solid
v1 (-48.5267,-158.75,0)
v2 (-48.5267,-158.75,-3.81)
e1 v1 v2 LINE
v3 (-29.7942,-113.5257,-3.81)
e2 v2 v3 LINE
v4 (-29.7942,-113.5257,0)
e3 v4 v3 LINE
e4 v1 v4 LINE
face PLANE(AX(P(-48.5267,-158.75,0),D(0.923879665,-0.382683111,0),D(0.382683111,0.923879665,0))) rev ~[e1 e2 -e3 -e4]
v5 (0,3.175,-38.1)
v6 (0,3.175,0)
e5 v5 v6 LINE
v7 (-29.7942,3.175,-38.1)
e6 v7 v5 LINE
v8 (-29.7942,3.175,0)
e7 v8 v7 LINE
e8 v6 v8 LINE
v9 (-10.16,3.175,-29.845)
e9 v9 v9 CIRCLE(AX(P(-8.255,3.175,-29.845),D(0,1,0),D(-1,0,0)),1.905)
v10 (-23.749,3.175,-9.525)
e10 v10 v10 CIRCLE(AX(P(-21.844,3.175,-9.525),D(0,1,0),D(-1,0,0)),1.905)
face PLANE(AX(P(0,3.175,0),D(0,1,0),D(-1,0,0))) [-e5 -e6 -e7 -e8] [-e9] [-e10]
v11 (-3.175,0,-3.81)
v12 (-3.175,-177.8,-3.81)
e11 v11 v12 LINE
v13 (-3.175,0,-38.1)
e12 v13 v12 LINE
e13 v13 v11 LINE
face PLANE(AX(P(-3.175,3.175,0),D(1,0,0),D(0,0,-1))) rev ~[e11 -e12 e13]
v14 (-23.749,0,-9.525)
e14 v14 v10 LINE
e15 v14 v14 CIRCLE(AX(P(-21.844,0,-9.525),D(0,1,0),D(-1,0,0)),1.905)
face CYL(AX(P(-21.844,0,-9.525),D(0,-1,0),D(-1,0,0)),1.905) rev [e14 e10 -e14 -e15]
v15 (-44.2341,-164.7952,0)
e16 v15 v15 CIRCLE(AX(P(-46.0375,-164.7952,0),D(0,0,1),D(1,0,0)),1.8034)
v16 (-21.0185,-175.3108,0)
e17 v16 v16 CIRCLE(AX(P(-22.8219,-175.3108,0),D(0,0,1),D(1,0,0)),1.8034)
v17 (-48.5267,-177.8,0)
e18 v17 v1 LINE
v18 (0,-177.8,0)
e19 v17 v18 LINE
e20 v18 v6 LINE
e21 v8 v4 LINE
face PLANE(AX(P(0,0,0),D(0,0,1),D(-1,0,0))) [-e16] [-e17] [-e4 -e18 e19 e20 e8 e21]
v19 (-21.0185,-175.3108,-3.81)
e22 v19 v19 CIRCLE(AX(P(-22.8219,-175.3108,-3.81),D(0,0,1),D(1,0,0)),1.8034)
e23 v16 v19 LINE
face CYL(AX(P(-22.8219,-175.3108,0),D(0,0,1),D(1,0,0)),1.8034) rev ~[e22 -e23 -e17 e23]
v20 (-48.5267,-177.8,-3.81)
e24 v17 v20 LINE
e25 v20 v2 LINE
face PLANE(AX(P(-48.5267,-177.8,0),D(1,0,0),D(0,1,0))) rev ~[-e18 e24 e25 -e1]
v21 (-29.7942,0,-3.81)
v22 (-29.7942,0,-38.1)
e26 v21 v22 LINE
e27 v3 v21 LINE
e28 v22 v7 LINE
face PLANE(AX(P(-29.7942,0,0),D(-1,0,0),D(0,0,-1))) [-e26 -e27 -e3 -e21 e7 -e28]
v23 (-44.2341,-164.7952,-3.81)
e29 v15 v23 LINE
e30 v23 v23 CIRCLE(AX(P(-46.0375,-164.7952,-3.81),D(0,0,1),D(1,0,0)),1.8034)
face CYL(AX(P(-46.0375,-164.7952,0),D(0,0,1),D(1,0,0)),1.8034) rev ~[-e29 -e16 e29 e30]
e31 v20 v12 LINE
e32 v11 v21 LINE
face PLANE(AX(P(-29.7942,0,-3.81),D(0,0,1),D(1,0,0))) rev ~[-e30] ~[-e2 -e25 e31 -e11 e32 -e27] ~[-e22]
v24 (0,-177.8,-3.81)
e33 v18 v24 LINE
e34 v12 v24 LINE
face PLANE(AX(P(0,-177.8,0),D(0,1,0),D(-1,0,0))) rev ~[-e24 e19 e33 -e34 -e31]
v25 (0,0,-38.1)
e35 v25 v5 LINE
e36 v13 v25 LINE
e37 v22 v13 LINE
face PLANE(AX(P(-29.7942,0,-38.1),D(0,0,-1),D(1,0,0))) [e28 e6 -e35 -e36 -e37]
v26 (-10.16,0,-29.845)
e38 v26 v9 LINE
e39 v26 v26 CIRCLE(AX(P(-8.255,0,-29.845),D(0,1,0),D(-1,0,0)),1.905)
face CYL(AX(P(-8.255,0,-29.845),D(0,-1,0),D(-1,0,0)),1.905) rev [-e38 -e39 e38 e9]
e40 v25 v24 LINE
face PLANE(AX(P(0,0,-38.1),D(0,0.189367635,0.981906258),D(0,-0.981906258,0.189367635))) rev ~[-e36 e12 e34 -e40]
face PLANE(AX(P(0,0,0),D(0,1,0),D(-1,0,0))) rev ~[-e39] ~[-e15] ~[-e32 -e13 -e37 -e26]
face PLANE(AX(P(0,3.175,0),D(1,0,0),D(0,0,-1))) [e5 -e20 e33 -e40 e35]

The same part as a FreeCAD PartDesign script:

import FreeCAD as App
import Part
import Sketcher
from FreeCAD import Vector
Q = App.Units.Quantity


def add_polygon(sketch, points):
    """Adds a closed chain of lines whose ends are joined by coincident constraints."""
    first, n = sketch.GeometryCount, len(points)
    for a, b in zip(points, points[1:] + points[:1]):
        sketch.addGeometry(Part.LineSegment(App.Vector(*a, 0), App.Vector(*b, 0)), False)
    for i in range(n):
        sketch.addConstraint(Sketcher.Constraint("Coincident", first + i, 2, first + (i + 1) % n, 1))

doc = App.newDocument("Part")
body = doc.addObject("PartDesign::Body", "Body")

# Sketch on XZ plane
sketch1 = body.newObject("Sketcher::SketchObject", "Sketch")
sketch1.AttachmentSupport = (doc.getObject("XZ_Plane"), [""])
sketch1.MapMode = "FlatFace"
add_polygon(sketch1, [(-29.7942, 0), (0, 0), (0, -38.1), (-29.7942, -38.1)])  # lines 0-3
sketch1.addGeometry(Part.Circle(Vector(-8.255, -29.845, 0), Vector(0, 0, 1), 1.905), False)  # 4
sketch1.addGeometry(Part.Circle(Vector(-21.844, -9.525, 0), Vector(0, 0, 1), 1.905), False)  # 5
sketch1.addConstraint(Sketcher.Constraint("Horizontal", 0))
sketch1.addConstraint(Sketcher.Constraint("Vertical", 1))
sketch1.addConstraint(Sketcher.Constraint("Horizontal", 2))
sketch1.addConstraint(Sketcher.Constraint("Vertical", 3))
sketch1.addConstraint(Sketcher.Constraint("Coincident", 0, 2, -1, 1))
sketch1.addConstraint(Sketcher.Constraint("Equal", 4, 5))
sketch1.addConstraint(Sketcher.Constraint("Diameter", 4, Q("0.15 in")))
sketch1.addConstraint(Sketcher.Constraint("DistanceY", 1, 2, 1, 1, Q("1.5 in")))
sketch1.addConstraint(Sketcher.Constraint("DistanceX", 0, 1, 0, 2, Q("1.173 in")))
sketch1.addConstraint(Sketcher.Constraint("DistanceX", 4, 3, -1, 1, Q("0.325 in")))
sketch1.addConstraint(Sketcher.Constraint("DistanceY", 5, 3, -1, 1, Q("0.375 in")))
sketch1.addConstraint(Sketcher.Constraint("DistanceY", 1, 2, 4, 3, Q("0.325 in")))
sketch1.addConstraint(Sketcher.Constraint("DistanceX", 2, 2, 5, 3, Q("0.313 in")))
pad1 = body.newObject("PartDesign::Pad", "Pad")
pad1.Profile = sketch1
pad1.Length = Q("0.125 in")
pad1.Reversed = True

# Sketch on XY plane
sketch2 = body.newObject("Sketcher::SketchObject", "Sketch001")
sketch2.AttachmentSupport = (doc.getObject("XY_Plane"), [""])
sketch2.MapMode = "FlatFace"
add_polygon(sketch2, [(0, -177.8), (0, 0), (-29.7942, 0), (-29.7942, -113.5257), (-48.5267, -158.75), (-48.5267, -177.8)])  # lines 0-5
sketch2.addGeometry(Part.Circle(Vector(-46.0375, -164.7952, 0), Vector(0, 0, 1), 1.8034), False)  # 6
sketch2.addGeometry(Part.Circle(Vector(-22.8219, -175.3108, 0), Vector(0, 0, 1), 1.8034), False)  # 7
sketch2.addConstraint(Sketcher.Constraint("Vertical", 0))
sketch2.addConstraint(Sketcher.Constraint("Horizontal", 1))
sketch2.addConstraint(Sketcher.Constraint("Vertical", 2))
sketch2.addConstraint(Sketcher.Constraint("Vertical", 4))
sketch2.addConstraint(Sketcher.Constraint("Horizontal", 5))
sketch2.addConstraint(Sketcher.Constraint("Coincident", 0, 2, -1, 1))
sketch2.addConstraint(Sketcher.Constraint("Equal", 6, 7))
sketch2.addConstraint(Sketcher.Constraint("DistanceY", 0, 1, 0, 2, Q("7 in")))
sketch2.addConstraint(Sketcher.Constraint("Diameter", 6, Q("0.142 in")))
sketch2.addConstraint(Sketcher.Constraint("DistanceY", 4, 2, 4, 1, Q("0.75 in")))
sketch2.addConstraint(Sketcher.Constraint("DistanceX", 1, 2, 1, 1, Q("1.173 in")))
sketch2.addConstraint(Sketcher.Constraint("DistanceX", 5, 1, 5, 2, Q("1.9105 in")))
sketch2.addConstraint(Sketcher.Constraint("DistanceX", 3, 2, 6, 3, Q("0.098 in")))
sketch2.addConstraint(Sketcher.Constraint("DistanceX", 3, 2, 7, 3, Q("1.012 in")))
sketch2.addConstraint(Sketcher.Constraint("DistanceY", 4, 2, 6, 3, Q("0.512 in")))
sketch2.addConstraint(Sketcher.Constraint("DistanceY", 4, 2, 7, 3, Q("0.098 in")))
sketch2.addConstraint(Sketcher.Constraint("Angle", 3, Q("-112.5 deg")))
pad2 = body.newObject("PartDesign::Pad", "Pad001")
pad2.Profile = sketch2
pad2.Length = Q("0.15 in")
pad2.Reversed = True

# Sketch on YZ plane
sketch3 = body.newObject("Sketcher::SketchObject", "Sketch002")
sketch3.AttachmentSupport = (doc.getObject("YZ_Plane"), [""])
sketch3.MapMode = "FlatFace"
add_polygon(sketch3, [(0, -38.1), (0, -3.81), (-177.8, -3.81)])  # lines 0-2
sketch3.addConstraint(Sketcher.Constraint("Vertical", 0))
sketch3.addConstraint(Sketcher.Constraint("Horizontal", 1))
sketch3.addConstraint(Sketcher.Constraint("PointOnObject", 0, 2, -2))
sketch3.addConstraint(Sketcher.Constraint("DistanceX", 1, 2, 1, 1, Q("7 in")))
sketch3.addConstraint(Sketcher.Constraint("DistanceY", 0, 1, 0, 2, Q("1.35 in")))
sketch3.addConstraint(Sketcher.Constraint("DistanceY", 2, 2, -1, 1, Q("1.5 in")))
pad3 = body.newObject("PartDesign::Pad", "Pad002")
pad3.Profile = sketch3
pad3.Length = Q("0.125 in")
pad3.Reversed = True

doc.recompute()
